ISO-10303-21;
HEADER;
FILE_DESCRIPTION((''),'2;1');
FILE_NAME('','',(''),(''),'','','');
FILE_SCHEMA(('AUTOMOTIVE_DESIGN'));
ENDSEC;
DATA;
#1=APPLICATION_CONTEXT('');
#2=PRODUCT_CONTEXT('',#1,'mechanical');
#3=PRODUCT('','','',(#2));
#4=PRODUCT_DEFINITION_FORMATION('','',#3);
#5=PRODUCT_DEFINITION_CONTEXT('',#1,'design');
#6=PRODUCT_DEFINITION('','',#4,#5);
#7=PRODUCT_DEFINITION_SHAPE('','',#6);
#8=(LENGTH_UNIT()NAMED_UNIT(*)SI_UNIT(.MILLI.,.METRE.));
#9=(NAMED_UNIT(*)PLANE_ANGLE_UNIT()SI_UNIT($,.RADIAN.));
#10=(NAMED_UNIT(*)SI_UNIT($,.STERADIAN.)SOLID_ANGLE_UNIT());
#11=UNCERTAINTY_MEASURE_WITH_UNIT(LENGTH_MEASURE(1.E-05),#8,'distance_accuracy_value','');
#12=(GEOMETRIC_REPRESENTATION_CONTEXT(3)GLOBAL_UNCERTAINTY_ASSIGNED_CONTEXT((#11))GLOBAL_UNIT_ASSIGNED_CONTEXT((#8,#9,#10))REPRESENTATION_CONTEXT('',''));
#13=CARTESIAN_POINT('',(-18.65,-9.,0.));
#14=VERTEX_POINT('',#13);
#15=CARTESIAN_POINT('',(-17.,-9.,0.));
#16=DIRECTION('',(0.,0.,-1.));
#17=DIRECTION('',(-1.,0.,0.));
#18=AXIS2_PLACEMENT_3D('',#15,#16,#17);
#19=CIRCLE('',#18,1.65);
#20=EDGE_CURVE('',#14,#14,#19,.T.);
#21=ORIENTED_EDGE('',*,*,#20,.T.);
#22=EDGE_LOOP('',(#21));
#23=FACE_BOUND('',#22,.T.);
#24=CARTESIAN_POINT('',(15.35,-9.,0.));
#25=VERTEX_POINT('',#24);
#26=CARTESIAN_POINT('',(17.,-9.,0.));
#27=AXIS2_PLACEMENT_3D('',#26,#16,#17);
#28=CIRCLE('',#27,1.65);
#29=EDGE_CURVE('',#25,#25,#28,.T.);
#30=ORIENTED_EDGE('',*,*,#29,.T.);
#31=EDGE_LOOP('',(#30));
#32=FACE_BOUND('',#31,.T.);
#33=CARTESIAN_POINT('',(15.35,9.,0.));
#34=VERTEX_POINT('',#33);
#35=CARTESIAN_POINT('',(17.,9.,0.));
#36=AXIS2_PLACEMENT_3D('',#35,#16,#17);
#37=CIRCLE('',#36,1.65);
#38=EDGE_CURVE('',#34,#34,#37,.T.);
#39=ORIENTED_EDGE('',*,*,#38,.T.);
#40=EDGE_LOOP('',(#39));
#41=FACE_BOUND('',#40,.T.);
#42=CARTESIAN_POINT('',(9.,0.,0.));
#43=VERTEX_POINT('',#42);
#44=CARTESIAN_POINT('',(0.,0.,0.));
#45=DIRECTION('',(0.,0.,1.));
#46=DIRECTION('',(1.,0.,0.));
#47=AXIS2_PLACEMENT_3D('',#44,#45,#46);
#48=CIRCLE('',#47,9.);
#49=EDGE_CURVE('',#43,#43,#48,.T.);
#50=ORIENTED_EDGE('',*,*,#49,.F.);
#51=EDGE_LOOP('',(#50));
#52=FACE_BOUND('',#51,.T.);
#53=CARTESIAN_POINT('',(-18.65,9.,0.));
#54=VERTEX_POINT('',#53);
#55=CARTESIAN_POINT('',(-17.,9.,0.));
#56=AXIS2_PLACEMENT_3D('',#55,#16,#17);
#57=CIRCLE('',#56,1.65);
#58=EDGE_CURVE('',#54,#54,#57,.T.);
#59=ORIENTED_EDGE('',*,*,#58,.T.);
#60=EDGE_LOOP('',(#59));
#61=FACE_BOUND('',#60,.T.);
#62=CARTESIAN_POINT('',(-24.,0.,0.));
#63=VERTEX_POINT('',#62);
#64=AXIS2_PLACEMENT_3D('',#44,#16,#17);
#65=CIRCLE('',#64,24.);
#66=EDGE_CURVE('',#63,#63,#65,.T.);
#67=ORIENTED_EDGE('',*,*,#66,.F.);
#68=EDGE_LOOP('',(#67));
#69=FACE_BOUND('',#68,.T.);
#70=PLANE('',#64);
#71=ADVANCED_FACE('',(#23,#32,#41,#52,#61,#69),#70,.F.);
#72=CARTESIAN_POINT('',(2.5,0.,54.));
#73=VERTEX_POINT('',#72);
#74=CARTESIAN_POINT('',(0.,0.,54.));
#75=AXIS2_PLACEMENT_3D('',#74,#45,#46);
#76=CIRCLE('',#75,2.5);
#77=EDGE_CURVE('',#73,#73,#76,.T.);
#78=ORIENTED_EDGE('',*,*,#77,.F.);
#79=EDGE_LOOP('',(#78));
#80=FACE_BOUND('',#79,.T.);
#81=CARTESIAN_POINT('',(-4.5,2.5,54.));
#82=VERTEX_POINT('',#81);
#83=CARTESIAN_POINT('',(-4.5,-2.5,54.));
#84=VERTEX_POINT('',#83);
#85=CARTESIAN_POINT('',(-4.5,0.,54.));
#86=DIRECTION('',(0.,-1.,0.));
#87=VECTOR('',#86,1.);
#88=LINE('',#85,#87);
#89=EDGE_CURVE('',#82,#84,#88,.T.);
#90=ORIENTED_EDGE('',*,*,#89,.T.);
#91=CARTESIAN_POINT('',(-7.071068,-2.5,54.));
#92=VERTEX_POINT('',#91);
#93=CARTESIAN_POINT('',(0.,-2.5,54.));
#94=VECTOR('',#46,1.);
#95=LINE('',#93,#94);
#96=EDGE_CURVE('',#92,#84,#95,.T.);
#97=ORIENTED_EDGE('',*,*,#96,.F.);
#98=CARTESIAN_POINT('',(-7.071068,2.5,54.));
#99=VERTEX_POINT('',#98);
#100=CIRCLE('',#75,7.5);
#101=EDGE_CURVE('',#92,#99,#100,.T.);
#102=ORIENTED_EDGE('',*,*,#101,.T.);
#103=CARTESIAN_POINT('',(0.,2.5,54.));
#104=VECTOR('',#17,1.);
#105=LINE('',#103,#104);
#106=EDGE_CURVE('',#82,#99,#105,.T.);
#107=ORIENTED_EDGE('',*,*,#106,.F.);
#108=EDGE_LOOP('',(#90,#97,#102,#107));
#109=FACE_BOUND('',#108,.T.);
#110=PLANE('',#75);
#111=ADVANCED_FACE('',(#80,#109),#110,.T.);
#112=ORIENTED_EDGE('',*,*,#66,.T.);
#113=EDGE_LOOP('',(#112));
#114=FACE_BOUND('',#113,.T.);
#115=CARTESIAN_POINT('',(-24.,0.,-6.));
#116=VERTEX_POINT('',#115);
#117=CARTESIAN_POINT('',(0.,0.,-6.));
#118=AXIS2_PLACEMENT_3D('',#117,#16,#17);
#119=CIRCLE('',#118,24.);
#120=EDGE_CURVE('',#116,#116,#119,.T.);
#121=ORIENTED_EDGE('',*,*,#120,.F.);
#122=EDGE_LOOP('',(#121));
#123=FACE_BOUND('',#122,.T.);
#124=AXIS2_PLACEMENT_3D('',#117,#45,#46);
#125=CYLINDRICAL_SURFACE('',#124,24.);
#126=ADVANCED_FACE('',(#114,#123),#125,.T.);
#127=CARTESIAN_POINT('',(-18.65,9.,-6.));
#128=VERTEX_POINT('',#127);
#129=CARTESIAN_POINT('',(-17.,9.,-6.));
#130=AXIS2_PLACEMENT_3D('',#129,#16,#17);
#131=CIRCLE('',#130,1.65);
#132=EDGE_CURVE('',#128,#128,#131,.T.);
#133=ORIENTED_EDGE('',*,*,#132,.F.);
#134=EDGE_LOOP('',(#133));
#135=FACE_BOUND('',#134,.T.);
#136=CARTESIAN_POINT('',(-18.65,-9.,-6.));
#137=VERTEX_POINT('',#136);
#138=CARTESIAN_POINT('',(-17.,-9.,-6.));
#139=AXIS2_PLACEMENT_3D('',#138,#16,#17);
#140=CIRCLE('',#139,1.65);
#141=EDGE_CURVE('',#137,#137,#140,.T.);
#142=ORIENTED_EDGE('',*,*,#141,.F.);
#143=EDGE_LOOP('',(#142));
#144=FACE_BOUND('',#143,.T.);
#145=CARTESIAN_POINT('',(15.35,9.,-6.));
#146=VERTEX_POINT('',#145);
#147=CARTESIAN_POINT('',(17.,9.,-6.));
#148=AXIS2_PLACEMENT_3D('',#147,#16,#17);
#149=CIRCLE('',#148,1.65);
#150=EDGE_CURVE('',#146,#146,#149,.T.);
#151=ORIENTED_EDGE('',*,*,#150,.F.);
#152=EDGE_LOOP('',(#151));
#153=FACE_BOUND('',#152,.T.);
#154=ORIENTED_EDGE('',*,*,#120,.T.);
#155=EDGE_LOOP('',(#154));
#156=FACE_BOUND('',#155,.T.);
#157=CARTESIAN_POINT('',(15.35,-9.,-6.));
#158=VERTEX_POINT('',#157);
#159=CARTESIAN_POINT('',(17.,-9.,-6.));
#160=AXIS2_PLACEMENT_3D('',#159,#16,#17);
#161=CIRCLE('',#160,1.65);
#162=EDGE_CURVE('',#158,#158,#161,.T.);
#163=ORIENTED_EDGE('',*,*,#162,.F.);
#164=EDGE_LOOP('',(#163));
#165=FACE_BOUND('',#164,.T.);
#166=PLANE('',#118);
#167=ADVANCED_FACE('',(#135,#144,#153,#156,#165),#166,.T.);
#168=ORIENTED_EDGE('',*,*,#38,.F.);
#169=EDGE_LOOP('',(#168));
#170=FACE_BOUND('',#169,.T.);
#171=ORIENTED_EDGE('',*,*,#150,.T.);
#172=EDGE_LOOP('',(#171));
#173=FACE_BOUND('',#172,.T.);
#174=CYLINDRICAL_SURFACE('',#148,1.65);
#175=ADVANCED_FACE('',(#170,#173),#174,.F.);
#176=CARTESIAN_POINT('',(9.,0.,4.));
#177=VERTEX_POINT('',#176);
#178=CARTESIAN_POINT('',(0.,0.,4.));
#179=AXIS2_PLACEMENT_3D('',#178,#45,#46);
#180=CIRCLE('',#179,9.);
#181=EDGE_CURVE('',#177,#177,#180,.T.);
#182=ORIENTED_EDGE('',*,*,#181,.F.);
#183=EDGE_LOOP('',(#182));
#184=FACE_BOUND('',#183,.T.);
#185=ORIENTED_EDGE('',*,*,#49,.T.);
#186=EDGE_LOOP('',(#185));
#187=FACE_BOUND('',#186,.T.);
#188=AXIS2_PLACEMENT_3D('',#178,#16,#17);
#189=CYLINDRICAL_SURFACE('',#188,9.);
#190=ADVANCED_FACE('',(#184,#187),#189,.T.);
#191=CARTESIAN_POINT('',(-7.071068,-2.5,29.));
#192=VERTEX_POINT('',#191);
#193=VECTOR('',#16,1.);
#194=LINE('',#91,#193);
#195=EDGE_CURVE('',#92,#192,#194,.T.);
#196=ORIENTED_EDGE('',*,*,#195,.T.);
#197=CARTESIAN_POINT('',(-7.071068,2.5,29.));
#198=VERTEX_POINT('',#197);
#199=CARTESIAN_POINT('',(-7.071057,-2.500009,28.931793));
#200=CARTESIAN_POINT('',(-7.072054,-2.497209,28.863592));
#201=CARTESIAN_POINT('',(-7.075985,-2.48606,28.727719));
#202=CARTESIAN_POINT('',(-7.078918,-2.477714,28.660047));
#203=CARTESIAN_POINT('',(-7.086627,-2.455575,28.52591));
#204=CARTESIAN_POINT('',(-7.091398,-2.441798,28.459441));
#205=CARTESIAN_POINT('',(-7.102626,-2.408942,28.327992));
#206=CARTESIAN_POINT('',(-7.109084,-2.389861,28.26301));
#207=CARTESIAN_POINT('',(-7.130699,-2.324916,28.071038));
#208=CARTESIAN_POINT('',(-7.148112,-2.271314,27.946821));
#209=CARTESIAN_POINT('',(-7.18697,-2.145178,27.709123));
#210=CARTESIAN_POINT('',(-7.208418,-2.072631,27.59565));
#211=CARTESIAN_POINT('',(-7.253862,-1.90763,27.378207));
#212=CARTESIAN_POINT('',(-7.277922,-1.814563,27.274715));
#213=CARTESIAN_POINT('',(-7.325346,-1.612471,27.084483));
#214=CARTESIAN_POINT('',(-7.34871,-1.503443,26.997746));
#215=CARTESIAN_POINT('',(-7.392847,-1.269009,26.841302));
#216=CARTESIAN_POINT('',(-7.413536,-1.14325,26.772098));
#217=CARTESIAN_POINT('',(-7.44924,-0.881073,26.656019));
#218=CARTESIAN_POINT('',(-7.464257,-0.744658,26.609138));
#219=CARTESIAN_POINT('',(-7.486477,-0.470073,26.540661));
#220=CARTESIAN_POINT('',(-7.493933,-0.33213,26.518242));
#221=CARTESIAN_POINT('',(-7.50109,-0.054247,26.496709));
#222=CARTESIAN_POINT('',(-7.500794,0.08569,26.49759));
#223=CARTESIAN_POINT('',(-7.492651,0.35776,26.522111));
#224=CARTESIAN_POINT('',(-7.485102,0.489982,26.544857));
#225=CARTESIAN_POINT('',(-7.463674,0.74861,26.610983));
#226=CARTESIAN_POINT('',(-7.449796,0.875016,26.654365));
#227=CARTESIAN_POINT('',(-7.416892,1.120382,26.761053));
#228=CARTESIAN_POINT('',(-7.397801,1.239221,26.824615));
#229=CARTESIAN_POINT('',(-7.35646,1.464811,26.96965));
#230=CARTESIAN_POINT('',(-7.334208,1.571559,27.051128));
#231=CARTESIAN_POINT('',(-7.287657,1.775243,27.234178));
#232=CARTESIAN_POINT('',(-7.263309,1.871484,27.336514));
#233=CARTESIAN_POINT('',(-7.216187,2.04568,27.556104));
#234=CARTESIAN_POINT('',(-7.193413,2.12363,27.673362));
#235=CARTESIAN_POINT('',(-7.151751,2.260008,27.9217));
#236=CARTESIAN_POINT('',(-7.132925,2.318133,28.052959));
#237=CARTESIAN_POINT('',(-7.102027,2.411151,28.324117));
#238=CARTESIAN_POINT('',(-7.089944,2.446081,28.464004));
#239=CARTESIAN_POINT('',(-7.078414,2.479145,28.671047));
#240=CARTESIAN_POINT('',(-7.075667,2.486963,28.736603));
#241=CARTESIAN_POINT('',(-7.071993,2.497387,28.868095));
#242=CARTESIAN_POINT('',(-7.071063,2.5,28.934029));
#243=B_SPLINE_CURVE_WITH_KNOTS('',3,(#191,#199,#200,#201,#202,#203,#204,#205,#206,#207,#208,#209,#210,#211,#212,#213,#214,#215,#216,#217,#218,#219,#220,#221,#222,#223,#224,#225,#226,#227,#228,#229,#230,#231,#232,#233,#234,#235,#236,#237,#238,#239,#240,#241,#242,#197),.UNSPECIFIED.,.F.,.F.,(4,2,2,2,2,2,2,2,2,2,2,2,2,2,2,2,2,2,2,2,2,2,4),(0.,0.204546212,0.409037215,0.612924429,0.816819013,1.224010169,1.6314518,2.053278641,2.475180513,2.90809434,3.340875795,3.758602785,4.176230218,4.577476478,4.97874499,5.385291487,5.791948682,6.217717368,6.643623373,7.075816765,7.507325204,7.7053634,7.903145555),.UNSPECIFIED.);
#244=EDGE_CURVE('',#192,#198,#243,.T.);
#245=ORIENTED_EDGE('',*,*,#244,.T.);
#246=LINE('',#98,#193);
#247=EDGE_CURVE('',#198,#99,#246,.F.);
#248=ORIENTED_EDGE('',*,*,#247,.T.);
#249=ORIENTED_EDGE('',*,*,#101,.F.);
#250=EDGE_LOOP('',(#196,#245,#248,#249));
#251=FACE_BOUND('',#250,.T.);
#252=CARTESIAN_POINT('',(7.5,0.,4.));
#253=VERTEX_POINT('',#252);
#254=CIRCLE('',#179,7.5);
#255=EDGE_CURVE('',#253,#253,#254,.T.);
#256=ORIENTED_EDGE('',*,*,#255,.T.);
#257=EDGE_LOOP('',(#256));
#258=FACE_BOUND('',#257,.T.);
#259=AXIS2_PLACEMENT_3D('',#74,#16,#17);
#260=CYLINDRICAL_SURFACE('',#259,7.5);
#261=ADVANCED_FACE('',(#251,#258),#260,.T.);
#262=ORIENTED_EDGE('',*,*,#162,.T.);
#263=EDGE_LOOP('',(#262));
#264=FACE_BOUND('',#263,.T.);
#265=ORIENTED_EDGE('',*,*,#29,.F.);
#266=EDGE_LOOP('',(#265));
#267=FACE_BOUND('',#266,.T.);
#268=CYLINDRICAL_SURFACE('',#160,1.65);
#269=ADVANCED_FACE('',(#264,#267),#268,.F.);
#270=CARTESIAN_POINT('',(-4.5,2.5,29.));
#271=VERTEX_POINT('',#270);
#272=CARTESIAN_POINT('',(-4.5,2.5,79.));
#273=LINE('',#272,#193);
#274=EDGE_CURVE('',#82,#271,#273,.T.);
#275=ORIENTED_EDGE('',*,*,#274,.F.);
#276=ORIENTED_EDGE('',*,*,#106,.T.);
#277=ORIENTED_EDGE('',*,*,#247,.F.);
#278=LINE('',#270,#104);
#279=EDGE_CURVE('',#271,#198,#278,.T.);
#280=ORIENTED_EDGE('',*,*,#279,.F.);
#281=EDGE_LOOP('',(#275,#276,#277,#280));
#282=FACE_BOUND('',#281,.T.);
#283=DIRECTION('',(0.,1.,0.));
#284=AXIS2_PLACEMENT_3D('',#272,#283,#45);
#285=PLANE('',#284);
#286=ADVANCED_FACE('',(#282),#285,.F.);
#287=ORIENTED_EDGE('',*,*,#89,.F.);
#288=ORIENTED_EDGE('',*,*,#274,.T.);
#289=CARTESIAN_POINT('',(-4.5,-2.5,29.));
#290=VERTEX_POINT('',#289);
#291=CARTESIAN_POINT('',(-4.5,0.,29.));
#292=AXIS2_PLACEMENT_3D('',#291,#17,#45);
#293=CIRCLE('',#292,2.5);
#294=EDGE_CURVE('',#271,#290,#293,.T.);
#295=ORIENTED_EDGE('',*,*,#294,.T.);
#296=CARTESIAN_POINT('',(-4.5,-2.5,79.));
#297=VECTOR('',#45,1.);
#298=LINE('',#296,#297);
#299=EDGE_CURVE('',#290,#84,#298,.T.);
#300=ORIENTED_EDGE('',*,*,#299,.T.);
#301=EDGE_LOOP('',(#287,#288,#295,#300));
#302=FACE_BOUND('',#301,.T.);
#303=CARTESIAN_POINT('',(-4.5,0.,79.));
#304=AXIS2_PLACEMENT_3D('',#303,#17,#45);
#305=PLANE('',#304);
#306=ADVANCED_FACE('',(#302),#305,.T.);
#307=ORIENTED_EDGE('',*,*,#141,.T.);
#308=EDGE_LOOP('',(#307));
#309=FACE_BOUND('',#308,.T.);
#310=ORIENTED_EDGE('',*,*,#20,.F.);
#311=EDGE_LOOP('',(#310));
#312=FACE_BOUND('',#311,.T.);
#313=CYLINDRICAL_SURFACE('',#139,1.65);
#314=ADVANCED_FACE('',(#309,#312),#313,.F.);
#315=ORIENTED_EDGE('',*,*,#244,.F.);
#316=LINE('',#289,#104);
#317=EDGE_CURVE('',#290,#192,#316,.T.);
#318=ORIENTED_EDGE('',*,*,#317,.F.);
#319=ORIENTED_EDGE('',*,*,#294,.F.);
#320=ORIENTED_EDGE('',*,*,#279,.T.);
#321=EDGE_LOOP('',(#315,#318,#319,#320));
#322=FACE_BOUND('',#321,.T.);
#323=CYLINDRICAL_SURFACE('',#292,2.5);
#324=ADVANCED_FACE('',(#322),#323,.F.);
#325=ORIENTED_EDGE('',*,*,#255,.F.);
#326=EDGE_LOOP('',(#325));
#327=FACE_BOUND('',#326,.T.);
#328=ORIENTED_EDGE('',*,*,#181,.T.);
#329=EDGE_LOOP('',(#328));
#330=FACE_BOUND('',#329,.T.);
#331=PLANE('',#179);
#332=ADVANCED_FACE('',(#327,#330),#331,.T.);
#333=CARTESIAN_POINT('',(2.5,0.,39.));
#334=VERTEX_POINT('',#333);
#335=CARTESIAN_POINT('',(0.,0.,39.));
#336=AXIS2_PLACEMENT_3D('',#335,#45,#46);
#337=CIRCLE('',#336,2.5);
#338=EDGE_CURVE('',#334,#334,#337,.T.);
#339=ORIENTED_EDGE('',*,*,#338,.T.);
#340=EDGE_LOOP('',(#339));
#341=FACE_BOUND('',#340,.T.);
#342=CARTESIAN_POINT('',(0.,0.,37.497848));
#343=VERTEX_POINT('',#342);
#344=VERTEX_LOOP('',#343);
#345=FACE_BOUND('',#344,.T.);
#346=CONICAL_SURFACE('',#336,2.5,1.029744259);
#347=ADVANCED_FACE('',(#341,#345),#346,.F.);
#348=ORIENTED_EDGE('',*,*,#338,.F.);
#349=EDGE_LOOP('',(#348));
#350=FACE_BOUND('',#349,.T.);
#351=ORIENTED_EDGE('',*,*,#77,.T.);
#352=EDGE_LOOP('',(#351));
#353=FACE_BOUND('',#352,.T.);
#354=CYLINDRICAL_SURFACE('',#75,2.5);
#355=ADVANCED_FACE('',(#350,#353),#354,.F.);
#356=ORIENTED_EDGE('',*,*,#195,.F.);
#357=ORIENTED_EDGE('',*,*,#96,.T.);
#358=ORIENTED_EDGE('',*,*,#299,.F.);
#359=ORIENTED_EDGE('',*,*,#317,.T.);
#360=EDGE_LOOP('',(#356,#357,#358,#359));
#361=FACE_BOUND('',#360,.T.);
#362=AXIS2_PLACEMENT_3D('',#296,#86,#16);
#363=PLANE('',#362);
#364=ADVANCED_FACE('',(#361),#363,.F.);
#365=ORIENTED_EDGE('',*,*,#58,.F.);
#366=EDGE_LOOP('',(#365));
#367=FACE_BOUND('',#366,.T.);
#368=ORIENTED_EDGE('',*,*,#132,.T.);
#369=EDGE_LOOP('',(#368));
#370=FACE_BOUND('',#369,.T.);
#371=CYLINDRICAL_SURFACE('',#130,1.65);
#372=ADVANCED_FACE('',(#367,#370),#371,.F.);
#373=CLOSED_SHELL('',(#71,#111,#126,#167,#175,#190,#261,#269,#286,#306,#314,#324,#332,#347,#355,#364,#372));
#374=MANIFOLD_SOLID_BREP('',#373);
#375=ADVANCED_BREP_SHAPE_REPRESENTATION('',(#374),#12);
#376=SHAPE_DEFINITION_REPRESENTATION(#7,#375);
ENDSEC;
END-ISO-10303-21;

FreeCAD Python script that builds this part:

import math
import FreeCAD as App
import Part
import Sketcher
Q = App.Units.Quantity

doc = App.newDocument("Part")
params = doc.addObject("Spreadsheet::Sheet", "Params")
for row, (alias, value) in enumerate([
    ("sketch1_diameter", "18 mm"),
    ("pad1_length", "4 mm"),
    ("sketch2_diameter", "48 mm"),
    ("pad2_length", "6 mm"),
    ("sketch3_diameter", "15 mm"),
    ("pad3_length", "50 mm"),
    ("sketch4_diameter", "3.3 mm"),
    ("hole_diameter", "3.3 mm"),
    ("hole_depth", "6 mm"),
    ("sketch5_radius", "2.5 mm"),
    ("sketch5_height", "50 mm"),
    ("pocket1_length", "3 mm"),
    ("sketch6_diameter", "5 mm"),
    ("hole2_diameter", "5 mm"),
    ("hole2_depth", "15 mm"),
], start=1):
    params.set(f"A{row}", alias)
    params.set(f"B{row}", "=" + value)
    params.setAlias(f"B{row}", alias)

body = doc.addObject("PartDesign::Body", "Body")

# Sketch on XY plane
sketch1 = body.newObject("Sketcher::SketchObject", "Sketch")
sketch1.AttachmentSupport = (doc.getObject("XY_Plane"), [""])
sketch1.MapMode = "FlatFace"
sketch1.addGeometry(Part.Circle(App.Vector(0, 0, 0), App.Vector(0, 0, 1), 9), False)
sketch1.addConstraint([
    Sketcher.Constraint("Coincident", 0, 3, -1, 1),
    Sketcher.Constraint("Diameter", 0, Q("18 mm")),
])
sketch1.setExpression("Constraints[1]", "Params.sketch1_diameter")
pad1 = body.newObject("PartDesign::Pad", "Pad")
pad1.Profile = sketch1
pad1.setExpression("Length", "Params.pad1_length")

# Sketch on XY plane
sketch2 = body.newObject("Sketcher::SketchObject", "Sketch001")
sketch2.AttachmentSupport = (doc.getObject("XY_Plane"), [""])
sketch2.MapMode = "FlatFace"
sketch2.addGeometry(Part.Circle(App.Vector(0, 0, 0), App.Vector(0, 0, 1), 24), False)
sketch2.addConstraint([
    Sketcher.Constraint("Coincident", 0, 3, -1, 1),
    Sketcher.Constraint("Diameter", 0, Q("48 mm")),
])
sketch2.setExpression("Constraints[1]", "Params.sketch2_diameter")
pad2 = body.newObject("PartDesign::Pad", "Pad001")
pad2.Profile = sketch2
pad2.setExpression("Length", "Params.pad2_length")
pad2.Reversed = True

# Sketch on XY plane
sketch3 = body.newObject("Sketcher::SketchObject", "Sketch002")
sketch3.AttachmentSupport = (doc.getObject("XY_Plane"), [""])
sketch3.MapMode = "FlatFace"
sketch3.AttachmentOffset = App.Placement(App.Vector(0, 0, 4), App.Rotation())
sketch3.addGeometry(Part.Circle(App.Vector(0, 0, 0), App.Vector(0, 0, 1), 7.5), False)
sketch3.addConstraint([
    Sketcher.Constraint("Coincident", 0, 3, -1, 1),
    Sketcher.Constraint("Diameter", 0, Q("15 mm")),
])
sketch3.setExpression("Constraints[1]", "Params.sketch3_diameter")
pad3 = body.newObject("PartDesign::Pad", "Pad002")
pad3.Profile = sketch3
pad3.setExpression("Length", "Params.pad3_length")

# Sketch on XY plane
sketch4 = body.newObject("Sketcher::SketchObject", "Sketch003")
sketch4.AttachmentSupport = (doc.getObject("XY_Plane"), [""])
sketch4.MapMode = "FlatFace"
sketch4.AttachmentOffset = App.Placement(App.Vector(0, 0, -6), App.Rotation())
sketch4.addGeometry([
    Part.Circle(App.Vector(17, 9, 0), App.Vector(0, 0, 1), 1.65),
    Part.Circle(App.Vector(-17, -9, 0), App.Vector(0, 0, 1), 1.65),
    Part.Circle(App.Vector(-17, 9, 0), App.Vector(0, 0, 1), 1.65),
    Part.Circle(App.Vector(17, -9, 0), App.Vector(0, 0, 1), 1.65),
], False)
sketch4.addConstraint([
    Sketcher.Constraint("Equal", 0, 1),
    Sketcher.Constraint("Equal", 1, 2),
    Sketcher.Constraint("Equal", 2, 3),
    Sketcher.Constraint("Symmetric", 0, 3, 1, 3, -1, 1),
    Sketcher.Constraint("Symmetric", 2, 3, 3, 3, -1, 1),
    Sketcher.Constraint("Symmetric", 0, 3, 2, 3, -2),
    Sketcher.Constraint("Diameter", 0, Q("3.3 mm")),
    Sketcher.Constraint("DistanceX", -1, 1, 0, 3, Q("17 mm")),
    Sketcher.Constraint("DistanceY", -1, 1, 0, 3, Q("9 mm")),
])
sketch4.setExpression("Constraints[6]", "Params.sketch4_diameter")
doc.recompute()
hole = body.newObject("PartDesign::Hole", "Hole")
hole.Profile = sketch4
hole.ThreadType = "None"
hole.setExpression("Diameter", "Params.hole_diameter")
hole.DepthType = "Dimension"
hole.setExpression("Depth", "Params.hole_depth")
hole.DrillPoint = "Angled"
hole.DrillPointAngle = 118
hole.Reversed = True

# Sketch on YZ plane
sketch5 = body.newObject("Sketcher::SketchObject", "Sketch004")
sketch5.AttachmentSupport = (doc.getObject("YZ_Plane"), [""])
sketch5.MapMode = "FlatFace"
sketch5.AttachmentOffset = App.Placement(App.Vector(0, 0, -7.5), App.Rotation())
sketch5.addGeometry([
    Part.LineSegment(App.Vector(-2.5, 29, 0), App.Vector(-2.5, 79, 0)),
    Part.ArcOfCircle(Part.Circle(App.Vector(0, 79, 0), App.Vector(0, 0, 1), 2.5), math.radians(0), math.radians(180)),
    Part.LineSegment(App.Vector(2.5, 79, 0), App.Vector(2.5, 29, 0)),
    Part.ArcOfCircle(Part.Circle(App.Vector(0, 29, 0), App.Vector(0, 0, 1), 2.5), math.radians(180), math.radians(360)),
], False)
sketch5.addConstraint([
    Sketcher.Constraint("Tangent", 0, 2, 1, 2),
    Sketcher.Constraint("Tangent", 1, 1, 2, 1),
    Sketcher.Constraint("Tangent", 2, 2, 3, 2),
    Sketcher.Constraint("Tangent", 3, 1, 0, 1),
    Sketcher.Constraint("Vertical", 0),
    Sketcher.Constraint("Vertical", 2),
    Sketcher.Constraint("PointOnObject", 1, 3, -2),
    Sketcher.Constraint("Radius", 1, Q("2.5 mm")),
    Sketcher.Constraint("DistanceY", 0, 1, 0, 2, Q("50 mm")),
    Sketcher.Constraint("DistanceY", -1, 1, 1, 3, Q("79 mm")),
])
sketch5.setExpression("Constraints[7]", "Params.sketch5_radius")
sketch5.setExpression("Constraints[8]", "Params.sketch5_height")
pocket1 = body.newObject("PartDesign::Pocket", "Pocket")
pocket1.Profile = sketch5
pocket1.setExpression("Length", "Params.pocket1_length")
pocket1.Reversed = True

# Sketch on XY plane
sketch6 = body.newObject("Sketcher::SketchObject", "Sketch005")
sketch6.AttachmentSupport = (doc.getObject("XY_Plane"), [""])
sketch6.MapMode = "FlatFace"
sketch6.AttachmentOffset = App.Placement(App.Vector(0, 0, 54), App.Rotation())
sketch6.addGeometry(Part.Circle(App.Vector(0, 0, 0), App.Vector(0, 0, 1), 2.5), False)
sketch6.addConstraint([
    Sketcher.Constraint("Coincident", 0, 3, -1, 1),
    Sketcher.Constraint("Diameter", 0, Q("5 mm")),
])
sketch6.setExpression("Constraints[1]", "Params.sketch6_diameter")
doc.recompute()
hole2 = body.newObject("PartDesign::Hole", "Hole001")
hole2.Profile = sketch6
hole2.ThreadType = "None"
hole2.setExpression("Diameter", "Params.hole2_diameter")
hole2.DepthType = "Dimension"
hole2.setExpression("Depth", "Params.hole2_depth")
hole2.DrillPoint = "Angled"
hole2.DrillPointAngle = 118

doc.recompute()
